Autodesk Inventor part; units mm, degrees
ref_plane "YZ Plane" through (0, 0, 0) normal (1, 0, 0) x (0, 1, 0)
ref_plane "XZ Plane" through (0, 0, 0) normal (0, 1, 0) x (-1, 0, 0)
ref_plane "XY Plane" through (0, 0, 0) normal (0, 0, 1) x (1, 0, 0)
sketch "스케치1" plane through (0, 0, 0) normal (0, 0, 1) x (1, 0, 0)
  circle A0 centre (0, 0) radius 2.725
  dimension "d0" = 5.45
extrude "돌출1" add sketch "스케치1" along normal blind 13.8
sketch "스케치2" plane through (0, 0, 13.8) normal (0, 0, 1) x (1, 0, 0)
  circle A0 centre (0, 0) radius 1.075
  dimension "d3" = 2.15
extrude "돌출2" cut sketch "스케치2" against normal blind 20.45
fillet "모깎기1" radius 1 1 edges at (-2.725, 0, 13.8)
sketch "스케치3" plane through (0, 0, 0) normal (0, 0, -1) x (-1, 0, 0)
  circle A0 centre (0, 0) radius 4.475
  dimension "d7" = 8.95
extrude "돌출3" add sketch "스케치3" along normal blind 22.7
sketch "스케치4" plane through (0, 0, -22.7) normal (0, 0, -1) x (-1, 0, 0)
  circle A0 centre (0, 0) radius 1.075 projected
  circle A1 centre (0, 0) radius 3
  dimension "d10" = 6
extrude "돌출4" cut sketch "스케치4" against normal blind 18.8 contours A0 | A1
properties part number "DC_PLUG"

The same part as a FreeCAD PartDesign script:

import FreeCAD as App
import Part
import Sketcher

V = App.Vector
Q = App.Units.Quantity


def edges_at(feature, points):
    """Names of the edges that pass closest to the given points."""
    edges = feature.Shape.Edges
    near = lambda p: min(range(len(edges)), key=lambda i: edges[i].distToShape(Part.Vertex(*p))[0])
    return sorted({f"Edge{near(p) + 1}" for p in points})

doc = App.newDocument("Part")
body = doc.addObject("PartDesign::Body", "Body")

sketch1 = body.newObject("Sketcher::SketchObject", "Sketch")
sketch1.AttachmentSupport = (doc.getObject("XY_Plane"), [""])
sketch1.MapMode = "FlatFace"
sketch1.addGeometry(Part.Circle(V(0, 0, 0), V(0, 0, 1), 2.7), False)
sketch1.addConstraint([
    Sketcher.Constraint("Coincident", 0, 3, -1, 1),
    Sketcher.Constraint("Diameter", 0, Q("5.45 mm")),
])
pad1 = body.newObject("PartDesign::Pad", "Pad")
pad1.Profile = sketch1
pad1.Length = 13.8

sketch2 = body.newObject("Sketcher::SketchObject", "Sketch001")
sketch2.AttachmentSupport = (doc.getObject("XY_Plane"), [""])
sketch2.MapMode = "FlatFace"
sketch2.AttachmentOffset = App.Placement(V(0, 0, 13.8), App.Rotation())
sketch2.addGeometry(Part.Circle(V(0, 0, 0), V(0, 0, 1), 1.1), False)
sketch2.addConstraint([
    Sketcher.Constraint("Coincident", 0, 3, -1, 1),
    Sketcher.Constraint("Diameter", 0, Q("2.15 mm")),
])
pocket1 = body.newObject("PartDesign::Pocket", "Pocket")
pocket1.Profile = sketch2
pocket1.Length = 20.45
doc.recompute()

fillet = body.newObject("PartDesign::Fillet", "Fillet")
fillet.Base = (pocket1, edges_at(pocket1, [(-2.725, 0, 13.8)]))
fillet.Radius = 1

sketch3 = body.newObject("Sketcher::SketchObject", "Sketch002")
sketch3.AttachmentSupport = (doc.getObject("XY_Plane"), [""])
sketch3.MapMode = "FlatFace"
sketch3.addGeometry(Part.Circle(V(0, 0, 0), V(0, 0, 1), 4.5), False)
sketch3.addConstraint([
    Sketcher.Constraint("Coincident", 0, 3, -1, 1),
    Sketcher.Constraint("Diameter", 0, Q("8.95 mm")),
])
pad2 = body.newObject("PartDesign::Pad", "Pad001")
pad2.Profile = sketch3
pad2.Length = 22.7
pad2.Reversed = True

sketch4 = body.newObject("Sketcher::SketchObject", "Sketch003")
sketch4.AttachmentSupport = (doc.getObject("XY_Plane"), [""])
sketch4.MapMode = "FlatFace"
sketch4.AttachmentOffset = App.Placement(V(0, 0, -22.7), App.Rotation())
sketch4.addGeometry(Part.Circle(V(0, 0, 0), V(0, 0, 1), 3), False)
sketch4.addConstraint([
    Sketcher.Constraint("Coincident", 0, 3, -1, 1),
    Sketcher.Constraint("Diameter", 0, Q("6 mm")),
])
pocket2 = body.newObject("PartDesign::Pocket", "Pocket001")
pocket2.Profile = sketch4
pocket2.Length = 18.8
pocket2.Reversed = True

doc.recompute()
